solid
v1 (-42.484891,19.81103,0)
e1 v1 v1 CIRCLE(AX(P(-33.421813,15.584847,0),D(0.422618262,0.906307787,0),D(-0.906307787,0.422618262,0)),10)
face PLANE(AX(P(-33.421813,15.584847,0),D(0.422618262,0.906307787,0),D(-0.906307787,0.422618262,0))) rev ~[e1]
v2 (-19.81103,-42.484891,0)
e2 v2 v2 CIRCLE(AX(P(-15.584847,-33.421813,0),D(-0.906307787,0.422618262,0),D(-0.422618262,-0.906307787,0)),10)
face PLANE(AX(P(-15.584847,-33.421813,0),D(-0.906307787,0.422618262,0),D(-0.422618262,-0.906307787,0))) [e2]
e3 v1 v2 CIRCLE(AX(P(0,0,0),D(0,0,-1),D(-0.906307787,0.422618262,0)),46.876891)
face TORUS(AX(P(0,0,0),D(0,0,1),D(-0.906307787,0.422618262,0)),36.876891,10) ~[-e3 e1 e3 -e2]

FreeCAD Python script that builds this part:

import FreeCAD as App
import Part
import Sketcher

V = App.Vector
Q = App.Units.Quantity

doc = App.newDocument("Part")
body = doc.addObject("PartDesign::Body", "Body")

# Sketch on an angled plane
sketch1 = body.newObject("Sketcher::SketchObject", "Sketch")
sketch1.Placement = App.Placement(V(0, 0, 0), App.Rotation(V(-0.906307787, 0.422618262, 0), V(0, 0, 1), V(0.422618262, 0.906307787, 0), "ZXY"))
sketch1.addGeometry(Part.Circle(V(37, 0, 0), V(0, 0, 1), 10), False)
sketch1.addConstraint([
    Sketcher.Constraint("PointOnObject", 0, 3, -1),
    Sketcher.Constraint("Diameter", 0, Q("20 mm")),
    Sketcher.Constraint("DistanceX", -1, 1, 0, 3, Q("36.876891 mm")),
])
revolution = body.newObject("PartDesign::Revolution", "Revolution")
revolution.Profile = sketch1
revolution.ReferenceAxis = (sketch1, ["V_Axis"])
revolution.Angle = 270
revolution.Reversed = True

doc.recompute()
